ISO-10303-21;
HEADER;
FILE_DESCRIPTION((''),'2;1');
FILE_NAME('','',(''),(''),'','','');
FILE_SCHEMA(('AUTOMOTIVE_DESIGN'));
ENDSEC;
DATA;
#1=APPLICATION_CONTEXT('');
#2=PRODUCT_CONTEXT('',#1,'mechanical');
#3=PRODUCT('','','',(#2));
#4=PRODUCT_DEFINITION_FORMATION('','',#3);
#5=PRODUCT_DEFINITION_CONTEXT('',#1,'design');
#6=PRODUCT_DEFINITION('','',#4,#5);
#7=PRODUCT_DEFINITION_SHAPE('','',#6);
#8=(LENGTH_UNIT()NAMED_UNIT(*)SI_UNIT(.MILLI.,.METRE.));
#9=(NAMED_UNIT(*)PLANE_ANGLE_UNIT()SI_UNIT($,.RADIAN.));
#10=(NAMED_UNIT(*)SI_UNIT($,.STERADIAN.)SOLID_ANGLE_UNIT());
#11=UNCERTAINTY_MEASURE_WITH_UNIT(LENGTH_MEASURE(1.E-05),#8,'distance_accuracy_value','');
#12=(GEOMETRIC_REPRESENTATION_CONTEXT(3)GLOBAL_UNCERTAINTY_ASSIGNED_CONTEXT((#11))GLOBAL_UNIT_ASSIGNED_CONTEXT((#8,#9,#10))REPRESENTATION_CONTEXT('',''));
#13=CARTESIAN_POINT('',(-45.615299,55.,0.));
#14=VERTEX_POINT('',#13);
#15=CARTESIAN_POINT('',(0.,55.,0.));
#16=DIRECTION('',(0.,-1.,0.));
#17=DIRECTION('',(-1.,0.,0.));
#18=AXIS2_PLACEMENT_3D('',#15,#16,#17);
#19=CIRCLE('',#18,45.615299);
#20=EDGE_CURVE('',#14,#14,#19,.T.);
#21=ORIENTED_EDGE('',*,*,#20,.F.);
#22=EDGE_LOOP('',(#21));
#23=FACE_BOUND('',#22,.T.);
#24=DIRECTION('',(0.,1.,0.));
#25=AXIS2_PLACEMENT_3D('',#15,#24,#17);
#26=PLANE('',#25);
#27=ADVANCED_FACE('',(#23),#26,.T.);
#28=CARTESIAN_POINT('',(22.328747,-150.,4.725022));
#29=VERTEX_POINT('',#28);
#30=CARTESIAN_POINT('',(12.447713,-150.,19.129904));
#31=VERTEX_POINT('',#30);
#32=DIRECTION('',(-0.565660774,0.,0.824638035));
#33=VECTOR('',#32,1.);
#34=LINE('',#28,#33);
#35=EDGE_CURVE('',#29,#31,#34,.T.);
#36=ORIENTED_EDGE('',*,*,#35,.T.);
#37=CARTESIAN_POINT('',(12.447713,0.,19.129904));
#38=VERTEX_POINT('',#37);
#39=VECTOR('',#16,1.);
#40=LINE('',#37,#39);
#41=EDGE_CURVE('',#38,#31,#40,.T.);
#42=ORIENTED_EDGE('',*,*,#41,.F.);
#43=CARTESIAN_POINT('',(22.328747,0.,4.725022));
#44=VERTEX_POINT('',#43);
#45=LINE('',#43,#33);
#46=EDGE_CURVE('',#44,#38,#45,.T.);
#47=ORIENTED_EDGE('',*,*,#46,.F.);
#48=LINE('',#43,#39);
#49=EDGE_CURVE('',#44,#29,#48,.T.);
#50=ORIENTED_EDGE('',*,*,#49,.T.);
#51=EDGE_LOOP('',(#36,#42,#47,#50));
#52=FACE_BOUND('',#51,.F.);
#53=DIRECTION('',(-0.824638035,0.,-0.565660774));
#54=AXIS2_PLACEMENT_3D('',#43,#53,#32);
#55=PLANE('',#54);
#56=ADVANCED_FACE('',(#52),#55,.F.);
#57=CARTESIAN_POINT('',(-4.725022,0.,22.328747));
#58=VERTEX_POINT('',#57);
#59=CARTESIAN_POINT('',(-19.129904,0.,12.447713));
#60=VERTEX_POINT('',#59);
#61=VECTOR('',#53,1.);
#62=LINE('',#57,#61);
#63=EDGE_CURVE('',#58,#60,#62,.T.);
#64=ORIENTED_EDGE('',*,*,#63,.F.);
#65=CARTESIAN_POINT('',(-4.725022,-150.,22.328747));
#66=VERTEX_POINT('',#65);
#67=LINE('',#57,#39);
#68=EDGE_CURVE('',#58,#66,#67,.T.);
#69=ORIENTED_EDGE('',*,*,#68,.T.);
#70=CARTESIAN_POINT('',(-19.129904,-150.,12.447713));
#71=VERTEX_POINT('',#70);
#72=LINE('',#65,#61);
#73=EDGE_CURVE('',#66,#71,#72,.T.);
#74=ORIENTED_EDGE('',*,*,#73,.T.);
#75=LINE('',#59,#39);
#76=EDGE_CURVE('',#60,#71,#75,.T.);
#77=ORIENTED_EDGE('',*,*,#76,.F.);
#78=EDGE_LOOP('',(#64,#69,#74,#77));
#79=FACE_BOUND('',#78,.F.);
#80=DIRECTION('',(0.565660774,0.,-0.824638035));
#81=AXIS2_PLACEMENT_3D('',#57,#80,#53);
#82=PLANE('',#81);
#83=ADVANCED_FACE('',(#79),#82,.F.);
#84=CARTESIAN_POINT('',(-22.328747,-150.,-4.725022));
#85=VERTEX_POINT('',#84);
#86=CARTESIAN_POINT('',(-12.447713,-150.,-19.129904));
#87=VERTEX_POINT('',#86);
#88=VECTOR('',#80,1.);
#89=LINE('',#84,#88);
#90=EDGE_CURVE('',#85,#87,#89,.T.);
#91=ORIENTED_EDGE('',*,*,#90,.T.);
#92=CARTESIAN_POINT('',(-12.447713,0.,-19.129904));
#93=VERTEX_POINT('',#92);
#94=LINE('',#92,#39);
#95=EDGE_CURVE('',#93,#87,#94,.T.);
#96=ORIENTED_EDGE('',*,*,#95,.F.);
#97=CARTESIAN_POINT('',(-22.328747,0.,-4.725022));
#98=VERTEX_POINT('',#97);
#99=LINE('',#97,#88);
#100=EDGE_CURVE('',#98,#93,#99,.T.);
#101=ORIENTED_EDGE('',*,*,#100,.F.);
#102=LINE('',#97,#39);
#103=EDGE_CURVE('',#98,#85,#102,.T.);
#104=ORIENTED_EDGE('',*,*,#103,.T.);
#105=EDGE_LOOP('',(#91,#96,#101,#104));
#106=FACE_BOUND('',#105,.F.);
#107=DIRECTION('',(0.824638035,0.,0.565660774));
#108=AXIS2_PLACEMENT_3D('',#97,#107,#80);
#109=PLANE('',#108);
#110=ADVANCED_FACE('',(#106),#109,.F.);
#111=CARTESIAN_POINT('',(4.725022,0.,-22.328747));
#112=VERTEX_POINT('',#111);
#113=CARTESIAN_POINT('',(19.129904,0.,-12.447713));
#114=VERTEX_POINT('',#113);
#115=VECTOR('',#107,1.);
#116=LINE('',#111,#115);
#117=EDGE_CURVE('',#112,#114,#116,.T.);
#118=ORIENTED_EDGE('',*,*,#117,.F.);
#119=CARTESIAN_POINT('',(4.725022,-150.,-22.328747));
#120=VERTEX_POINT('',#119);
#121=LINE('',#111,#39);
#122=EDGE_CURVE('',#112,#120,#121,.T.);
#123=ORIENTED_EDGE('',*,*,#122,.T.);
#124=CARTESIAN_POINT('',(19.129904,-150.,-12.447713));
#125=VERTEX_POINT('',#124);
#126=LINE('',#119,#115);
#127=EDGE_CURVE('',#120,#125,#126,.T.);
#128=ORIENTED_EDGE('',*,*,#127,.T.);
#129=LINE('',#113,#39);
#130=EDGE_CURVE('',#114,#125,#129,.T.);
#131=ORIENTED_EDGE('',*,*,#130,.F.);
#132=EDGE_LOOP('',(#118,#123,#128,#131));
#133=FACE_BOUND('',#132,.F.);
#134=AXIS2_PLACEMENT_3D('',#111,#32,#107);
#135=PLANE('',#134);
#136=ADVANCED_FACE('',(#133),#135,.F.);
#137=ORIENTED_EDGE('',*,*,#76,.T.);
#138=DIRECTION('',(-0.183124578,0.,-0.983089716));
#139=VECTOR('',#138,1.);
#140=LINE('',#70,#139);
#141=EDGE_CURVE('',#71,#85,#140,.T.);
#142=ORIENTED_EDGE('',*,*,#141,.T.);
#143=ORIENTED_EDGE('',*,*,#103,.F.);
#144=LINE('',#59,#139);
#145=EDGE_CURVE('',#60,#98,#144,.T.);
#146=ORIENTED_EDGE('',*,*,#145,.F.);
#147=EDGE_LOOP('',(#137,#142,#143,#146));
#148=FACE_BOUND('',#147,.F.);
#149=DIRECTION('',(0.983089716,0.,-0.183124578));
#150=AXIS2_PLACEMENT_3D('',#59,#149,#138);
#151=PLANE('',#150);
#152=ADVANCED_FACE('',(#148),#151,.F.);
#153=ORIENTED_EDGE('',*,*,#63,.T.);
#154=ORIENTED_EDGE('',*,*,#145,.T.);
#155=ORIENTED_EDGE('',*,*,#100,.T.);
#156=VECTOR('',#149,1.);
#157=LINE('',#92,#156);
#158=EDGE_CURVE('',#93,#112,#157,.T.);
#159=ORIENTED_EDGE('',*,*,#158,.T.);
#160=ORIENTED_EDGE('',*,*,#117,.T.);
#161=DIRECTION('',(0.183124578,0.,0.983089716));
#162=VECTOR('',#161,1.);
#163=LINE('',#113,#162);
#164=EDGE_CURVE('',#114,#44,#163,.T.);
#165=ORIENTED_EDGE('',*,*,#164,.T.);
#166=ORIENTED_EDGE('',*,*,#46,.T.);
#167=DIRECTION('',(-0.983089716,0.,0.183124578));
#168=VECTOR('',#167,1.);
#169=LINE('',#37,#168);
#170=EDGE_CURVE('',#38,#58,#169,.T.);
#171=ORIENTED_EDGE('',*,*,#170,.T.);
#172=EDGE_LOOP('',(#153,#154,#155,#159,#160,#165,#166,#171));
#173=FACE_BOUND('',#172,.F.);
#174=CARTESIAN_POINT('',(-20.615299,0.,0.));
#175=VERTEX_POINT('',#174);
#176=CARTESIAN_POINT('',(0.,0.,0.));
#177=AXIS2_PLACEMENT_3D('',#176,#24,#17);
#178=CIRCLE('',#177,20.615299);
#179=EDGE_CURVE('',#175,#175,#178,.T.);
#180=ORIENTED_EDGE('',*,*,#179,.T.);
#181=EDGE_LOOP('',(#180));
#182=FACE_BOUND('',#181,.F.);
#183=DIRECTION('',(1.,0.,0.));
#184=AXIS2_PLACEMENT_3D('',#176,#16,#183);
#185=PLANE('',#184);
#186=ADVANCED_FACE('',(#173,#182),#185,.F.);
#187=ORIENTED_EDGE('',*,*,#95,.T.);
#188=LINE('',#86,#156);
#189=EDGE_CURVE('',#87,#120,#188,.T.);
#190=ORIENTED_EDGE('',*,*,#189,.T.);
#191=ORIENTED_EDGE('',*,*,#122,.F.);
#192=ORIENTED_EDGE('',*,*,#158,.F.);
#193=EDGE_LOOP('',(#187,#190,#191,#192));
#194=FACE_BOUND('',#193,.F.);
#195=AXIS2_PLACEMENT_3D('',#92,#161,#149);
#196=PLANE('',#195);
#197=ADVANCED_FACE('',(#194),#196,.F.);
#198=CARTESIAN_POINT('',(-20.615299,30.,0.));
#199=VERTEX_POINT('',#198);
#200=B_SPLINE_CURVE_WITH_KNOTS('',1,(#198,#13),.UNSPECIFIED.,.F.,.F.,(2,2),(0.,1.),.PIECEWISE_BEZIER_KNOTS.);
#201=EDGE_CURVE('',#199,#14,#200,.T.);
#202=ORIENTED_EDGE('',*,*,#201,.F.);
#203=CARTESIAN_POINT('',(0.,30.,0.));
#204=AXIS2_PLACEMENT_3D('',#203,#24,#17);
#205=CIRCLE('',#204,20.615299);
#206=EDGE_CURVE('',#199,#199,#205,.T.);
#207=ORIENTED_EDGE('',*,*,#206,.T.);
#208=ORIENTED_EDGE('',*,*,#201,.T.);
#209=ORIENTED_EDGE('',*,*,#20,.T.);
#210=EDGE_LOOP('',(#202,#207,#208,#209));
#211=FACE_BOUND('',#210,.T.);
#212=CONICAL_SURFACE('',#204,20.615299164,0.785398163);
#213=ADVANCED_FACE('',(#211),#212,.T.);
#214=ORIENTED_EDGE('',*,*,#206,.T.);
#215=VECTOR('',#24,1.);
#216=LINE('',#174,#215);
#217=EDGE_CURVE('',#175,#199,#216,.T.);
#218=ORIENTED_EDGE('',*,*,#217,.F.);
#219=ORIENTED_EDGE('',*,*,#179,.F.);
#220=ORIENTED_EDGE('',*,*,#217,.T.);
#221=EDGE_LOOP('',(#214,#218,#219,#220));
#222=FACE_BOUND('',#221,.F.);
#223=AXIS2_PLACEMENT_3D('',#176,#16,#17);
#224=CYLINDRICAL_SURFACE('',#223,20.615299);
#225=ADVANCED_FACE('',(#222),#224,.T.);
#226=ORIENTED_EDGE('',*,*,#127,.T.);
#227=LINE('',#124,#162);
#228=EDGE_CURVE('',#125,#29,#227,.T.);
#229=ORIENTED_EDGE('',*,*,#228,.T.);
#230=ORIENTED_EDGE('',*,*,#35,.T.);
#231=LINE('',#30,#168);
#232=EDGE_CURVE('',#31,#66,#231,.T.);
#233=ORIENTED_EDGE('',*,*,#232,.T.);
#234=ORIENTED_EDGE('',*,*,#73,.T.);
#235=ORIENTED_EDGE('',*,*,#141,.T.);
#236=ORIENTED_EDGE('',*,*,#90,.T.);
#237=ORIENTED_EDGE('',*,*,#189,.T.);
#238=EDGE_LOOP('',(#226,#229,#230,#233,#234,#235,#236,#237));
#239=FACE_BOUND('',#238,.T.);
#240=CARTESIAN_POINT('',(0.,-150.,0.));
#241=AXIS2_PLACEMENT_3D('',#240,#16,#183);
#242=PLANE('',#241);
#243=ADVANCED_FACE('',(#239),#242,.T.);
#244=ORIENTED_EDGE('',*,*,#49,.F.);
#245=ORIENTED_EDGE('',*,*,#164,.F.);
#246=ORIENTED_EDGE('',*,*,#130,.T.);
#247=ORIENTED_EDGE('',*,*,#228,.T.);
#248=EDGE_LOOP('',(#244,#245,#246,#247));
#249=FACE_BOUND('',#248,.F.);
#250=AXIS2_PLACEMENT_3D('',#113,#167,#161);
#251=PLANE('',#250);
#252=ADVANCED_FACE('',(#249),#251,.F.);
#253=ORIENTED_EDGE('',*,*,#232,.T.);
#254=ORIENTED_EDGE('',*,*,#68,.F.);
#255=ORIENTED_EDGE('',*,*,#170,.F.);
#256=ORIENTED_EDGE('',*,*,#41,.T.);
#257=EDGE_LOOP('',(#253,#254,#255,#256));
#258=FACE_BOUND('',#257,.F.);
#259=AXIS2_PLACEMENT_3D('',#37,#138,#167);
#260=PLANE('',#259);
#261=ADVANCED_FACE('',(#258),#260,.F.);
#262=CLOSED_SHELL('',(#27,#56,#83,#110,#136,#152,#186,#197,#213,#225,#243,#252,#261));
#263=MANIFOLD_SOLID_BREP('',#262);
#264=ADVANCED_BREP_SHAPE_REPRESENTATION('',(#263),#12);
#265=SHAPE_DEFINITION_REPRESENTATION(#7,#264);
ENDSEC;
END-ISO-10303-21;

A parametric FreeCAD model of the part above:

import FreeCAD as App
import Part
import Sketcher

V = App.Vector
Q = App.Units.Quantity

doc = App.newDocument("Part")
body = doc.addObject("PartDesign::Body", "Body")

# Sketch on XZ plane
sketch1 = body.newObject("Sketcher::SketchObject", "Sketch")
sketch1.AttachmentSupport = (doc.getObject("XZ_Plane"), [""])
sketch1.MapMode = "FlatFace"
sketch1.addGeometry(Part.LineSegment(V(5, -22, 0), V(19, -12, 0)), False)
sketch1.addGeometry(Part.LineSegment(V(19, -12, 0), V(22, 5, 0)), False)
sketch1.addGeometry(Part.LineSegment(V(22, 5, 0), V(12, 19, 0)), False)
sketch1.addGeometry(Part.LineSegment(V(12, 19, 0), V(-5, 22, 0)), False)
sketch1.addGeometry(Part.LineSegment(V(-5, 22, 0), V(-19, 12, 0)), False)
sketch1.addGeometry(Part.LineSegment(V(-19, 12, 0), V(-22, -5, 0)), False)
sketch1.addGeometry(Part.LineSegment(V(-22, -5, 0), V(-12, -19, 0)), False)
sketch1.addGeometry(Part.LineSegment(V(-12, -19, 0), V(5, -22, 0)), False)
sketch1.addConstraint(Sketcher.Constraint("Coincident", 0, 2, 1, 1))
sketch1.addConstraint(Sketcher.Constraint("Coincident", 1, 2, 2, 1))
sketch1.addConstraint(Sketcher.Constraint("Coincident", 2, 2, 3, 1))
sketch1.addConstraint(Sketcher.Constraint("Coincident", 3, 2, 4, 1))
sketch1.addConstraint(Sketcher.Constraint("Coincident", 4, 2, 5, 1))
sketch1.addConstraint(Sketcher.Constraint("Coincident", 5, 2, 6, 1))
sketch1.addConstraint(Sketcher.Constraint("Coincident", 6, 2, 7, 1))
sketch1.addConstraint(Sketcher.Constraint("Coincident", 7, 2, 0, 1))
sketch1.addConstraint(Sketcher.Constraint("Symmetric", 0, 2, 4, 2, -1, 1))
sketch1.addConstraint(Sketcher.Constraint("Symmetric", 1, 2, 5, 2, -1, 1))
sketch1.addConstraint(Sketcher.Constraint("Symmetric", 2, 2, 6, 2, -1, 1))
sketch1.addConstraint(Sketcher.Constraint("Symmetric", 3, 2, 7, 2, -1, 1))
sketch1.addConstraint(Sketcher.Constraint("Perpendicular", 0, 2))
sketch1.addConstraint(Sketcher.Constraint("Perpendicular", 1, 3))
sketch1.addConstraint(Sketcher.Constraint("Equal", 0, 1))
sketch1.addConstraint(Sketcher.Constraint("Equal", 1, 2))
sketch1.addConstraint(Sketcher.Constraint("Equal", 2, 3))
sketch1.addConstraint(Sketcher.Constraint("DistanceY", 1, 2, 2, 2, Q("14.404882 mm")))
sketch1.addConstraint(Sketcher.Constraint("DistanceX", 2, 2, 0, 2, Q("6.682191 mm")))
sketch1.addConstraint(Sketcher.Constraint("DistanceX", 3, 2, 1, 2, Q("27.05377 mm")))
pad1 = body.newObject("PartDesign::Pad", "Pad")
pad1.Profile = sketch1
pad1.Length = 150

# Sketch on XZ plane
sketch2 = body.newObject("Sketcher::SketchObject", "Sketch001")
sketch2.AttachmentSupport = (doc.getObject("XZ_Plane"), [""])
sketch2.MapMode = "FlatFace"
sketch2.addGeometry(Part.Circle(V(0, 0, 0), V(0, 0, 1), 21), False)
sketch2.addConstraint(Sketcher.Constraint("Coincident", 0, 3, -1, 1))
sketch2.addConstraint(Sketcher.Constraint("Diameter", 0, Q("41.230598 mm")))
pad2 = body.newObject("PartDesign::Pad", "Pad001")
pad2.Profile = sketch2
pad2.Length = 30
pad2.Reversed = True

# Sketch on XZ plane
sketch3 = body.newObject("Sketcher::SketchObject", "Sketch002")
sketch3.AttachmentSupport = (doc.getObject("XZ_Plane"), [""])
sketch3.MapMode = "FlatFace"
sketch3.AttachmentOffset = App.Placement(V(0, 0, -30), App.Rotation())
sketch3.addGeometry(Part.Circle(V(0, 0, 0), V(0, 0, 1), 21), False)
sketch3.addConstraint(Sketcher.Constraint("Coincident", 0, 3, -1, 1))
sketch3.addConstraint(Sketcher.Constraint("Diameter", 0, Q("41.230598 mm")))
pad3 = body.newObject("PartDesign::Pad", "Pad002")
pad3.Profile = sketch3
pad3.Length = 25
pad3.Reversed = True
pad3.TaperAngle = 45

doc.recompute()
